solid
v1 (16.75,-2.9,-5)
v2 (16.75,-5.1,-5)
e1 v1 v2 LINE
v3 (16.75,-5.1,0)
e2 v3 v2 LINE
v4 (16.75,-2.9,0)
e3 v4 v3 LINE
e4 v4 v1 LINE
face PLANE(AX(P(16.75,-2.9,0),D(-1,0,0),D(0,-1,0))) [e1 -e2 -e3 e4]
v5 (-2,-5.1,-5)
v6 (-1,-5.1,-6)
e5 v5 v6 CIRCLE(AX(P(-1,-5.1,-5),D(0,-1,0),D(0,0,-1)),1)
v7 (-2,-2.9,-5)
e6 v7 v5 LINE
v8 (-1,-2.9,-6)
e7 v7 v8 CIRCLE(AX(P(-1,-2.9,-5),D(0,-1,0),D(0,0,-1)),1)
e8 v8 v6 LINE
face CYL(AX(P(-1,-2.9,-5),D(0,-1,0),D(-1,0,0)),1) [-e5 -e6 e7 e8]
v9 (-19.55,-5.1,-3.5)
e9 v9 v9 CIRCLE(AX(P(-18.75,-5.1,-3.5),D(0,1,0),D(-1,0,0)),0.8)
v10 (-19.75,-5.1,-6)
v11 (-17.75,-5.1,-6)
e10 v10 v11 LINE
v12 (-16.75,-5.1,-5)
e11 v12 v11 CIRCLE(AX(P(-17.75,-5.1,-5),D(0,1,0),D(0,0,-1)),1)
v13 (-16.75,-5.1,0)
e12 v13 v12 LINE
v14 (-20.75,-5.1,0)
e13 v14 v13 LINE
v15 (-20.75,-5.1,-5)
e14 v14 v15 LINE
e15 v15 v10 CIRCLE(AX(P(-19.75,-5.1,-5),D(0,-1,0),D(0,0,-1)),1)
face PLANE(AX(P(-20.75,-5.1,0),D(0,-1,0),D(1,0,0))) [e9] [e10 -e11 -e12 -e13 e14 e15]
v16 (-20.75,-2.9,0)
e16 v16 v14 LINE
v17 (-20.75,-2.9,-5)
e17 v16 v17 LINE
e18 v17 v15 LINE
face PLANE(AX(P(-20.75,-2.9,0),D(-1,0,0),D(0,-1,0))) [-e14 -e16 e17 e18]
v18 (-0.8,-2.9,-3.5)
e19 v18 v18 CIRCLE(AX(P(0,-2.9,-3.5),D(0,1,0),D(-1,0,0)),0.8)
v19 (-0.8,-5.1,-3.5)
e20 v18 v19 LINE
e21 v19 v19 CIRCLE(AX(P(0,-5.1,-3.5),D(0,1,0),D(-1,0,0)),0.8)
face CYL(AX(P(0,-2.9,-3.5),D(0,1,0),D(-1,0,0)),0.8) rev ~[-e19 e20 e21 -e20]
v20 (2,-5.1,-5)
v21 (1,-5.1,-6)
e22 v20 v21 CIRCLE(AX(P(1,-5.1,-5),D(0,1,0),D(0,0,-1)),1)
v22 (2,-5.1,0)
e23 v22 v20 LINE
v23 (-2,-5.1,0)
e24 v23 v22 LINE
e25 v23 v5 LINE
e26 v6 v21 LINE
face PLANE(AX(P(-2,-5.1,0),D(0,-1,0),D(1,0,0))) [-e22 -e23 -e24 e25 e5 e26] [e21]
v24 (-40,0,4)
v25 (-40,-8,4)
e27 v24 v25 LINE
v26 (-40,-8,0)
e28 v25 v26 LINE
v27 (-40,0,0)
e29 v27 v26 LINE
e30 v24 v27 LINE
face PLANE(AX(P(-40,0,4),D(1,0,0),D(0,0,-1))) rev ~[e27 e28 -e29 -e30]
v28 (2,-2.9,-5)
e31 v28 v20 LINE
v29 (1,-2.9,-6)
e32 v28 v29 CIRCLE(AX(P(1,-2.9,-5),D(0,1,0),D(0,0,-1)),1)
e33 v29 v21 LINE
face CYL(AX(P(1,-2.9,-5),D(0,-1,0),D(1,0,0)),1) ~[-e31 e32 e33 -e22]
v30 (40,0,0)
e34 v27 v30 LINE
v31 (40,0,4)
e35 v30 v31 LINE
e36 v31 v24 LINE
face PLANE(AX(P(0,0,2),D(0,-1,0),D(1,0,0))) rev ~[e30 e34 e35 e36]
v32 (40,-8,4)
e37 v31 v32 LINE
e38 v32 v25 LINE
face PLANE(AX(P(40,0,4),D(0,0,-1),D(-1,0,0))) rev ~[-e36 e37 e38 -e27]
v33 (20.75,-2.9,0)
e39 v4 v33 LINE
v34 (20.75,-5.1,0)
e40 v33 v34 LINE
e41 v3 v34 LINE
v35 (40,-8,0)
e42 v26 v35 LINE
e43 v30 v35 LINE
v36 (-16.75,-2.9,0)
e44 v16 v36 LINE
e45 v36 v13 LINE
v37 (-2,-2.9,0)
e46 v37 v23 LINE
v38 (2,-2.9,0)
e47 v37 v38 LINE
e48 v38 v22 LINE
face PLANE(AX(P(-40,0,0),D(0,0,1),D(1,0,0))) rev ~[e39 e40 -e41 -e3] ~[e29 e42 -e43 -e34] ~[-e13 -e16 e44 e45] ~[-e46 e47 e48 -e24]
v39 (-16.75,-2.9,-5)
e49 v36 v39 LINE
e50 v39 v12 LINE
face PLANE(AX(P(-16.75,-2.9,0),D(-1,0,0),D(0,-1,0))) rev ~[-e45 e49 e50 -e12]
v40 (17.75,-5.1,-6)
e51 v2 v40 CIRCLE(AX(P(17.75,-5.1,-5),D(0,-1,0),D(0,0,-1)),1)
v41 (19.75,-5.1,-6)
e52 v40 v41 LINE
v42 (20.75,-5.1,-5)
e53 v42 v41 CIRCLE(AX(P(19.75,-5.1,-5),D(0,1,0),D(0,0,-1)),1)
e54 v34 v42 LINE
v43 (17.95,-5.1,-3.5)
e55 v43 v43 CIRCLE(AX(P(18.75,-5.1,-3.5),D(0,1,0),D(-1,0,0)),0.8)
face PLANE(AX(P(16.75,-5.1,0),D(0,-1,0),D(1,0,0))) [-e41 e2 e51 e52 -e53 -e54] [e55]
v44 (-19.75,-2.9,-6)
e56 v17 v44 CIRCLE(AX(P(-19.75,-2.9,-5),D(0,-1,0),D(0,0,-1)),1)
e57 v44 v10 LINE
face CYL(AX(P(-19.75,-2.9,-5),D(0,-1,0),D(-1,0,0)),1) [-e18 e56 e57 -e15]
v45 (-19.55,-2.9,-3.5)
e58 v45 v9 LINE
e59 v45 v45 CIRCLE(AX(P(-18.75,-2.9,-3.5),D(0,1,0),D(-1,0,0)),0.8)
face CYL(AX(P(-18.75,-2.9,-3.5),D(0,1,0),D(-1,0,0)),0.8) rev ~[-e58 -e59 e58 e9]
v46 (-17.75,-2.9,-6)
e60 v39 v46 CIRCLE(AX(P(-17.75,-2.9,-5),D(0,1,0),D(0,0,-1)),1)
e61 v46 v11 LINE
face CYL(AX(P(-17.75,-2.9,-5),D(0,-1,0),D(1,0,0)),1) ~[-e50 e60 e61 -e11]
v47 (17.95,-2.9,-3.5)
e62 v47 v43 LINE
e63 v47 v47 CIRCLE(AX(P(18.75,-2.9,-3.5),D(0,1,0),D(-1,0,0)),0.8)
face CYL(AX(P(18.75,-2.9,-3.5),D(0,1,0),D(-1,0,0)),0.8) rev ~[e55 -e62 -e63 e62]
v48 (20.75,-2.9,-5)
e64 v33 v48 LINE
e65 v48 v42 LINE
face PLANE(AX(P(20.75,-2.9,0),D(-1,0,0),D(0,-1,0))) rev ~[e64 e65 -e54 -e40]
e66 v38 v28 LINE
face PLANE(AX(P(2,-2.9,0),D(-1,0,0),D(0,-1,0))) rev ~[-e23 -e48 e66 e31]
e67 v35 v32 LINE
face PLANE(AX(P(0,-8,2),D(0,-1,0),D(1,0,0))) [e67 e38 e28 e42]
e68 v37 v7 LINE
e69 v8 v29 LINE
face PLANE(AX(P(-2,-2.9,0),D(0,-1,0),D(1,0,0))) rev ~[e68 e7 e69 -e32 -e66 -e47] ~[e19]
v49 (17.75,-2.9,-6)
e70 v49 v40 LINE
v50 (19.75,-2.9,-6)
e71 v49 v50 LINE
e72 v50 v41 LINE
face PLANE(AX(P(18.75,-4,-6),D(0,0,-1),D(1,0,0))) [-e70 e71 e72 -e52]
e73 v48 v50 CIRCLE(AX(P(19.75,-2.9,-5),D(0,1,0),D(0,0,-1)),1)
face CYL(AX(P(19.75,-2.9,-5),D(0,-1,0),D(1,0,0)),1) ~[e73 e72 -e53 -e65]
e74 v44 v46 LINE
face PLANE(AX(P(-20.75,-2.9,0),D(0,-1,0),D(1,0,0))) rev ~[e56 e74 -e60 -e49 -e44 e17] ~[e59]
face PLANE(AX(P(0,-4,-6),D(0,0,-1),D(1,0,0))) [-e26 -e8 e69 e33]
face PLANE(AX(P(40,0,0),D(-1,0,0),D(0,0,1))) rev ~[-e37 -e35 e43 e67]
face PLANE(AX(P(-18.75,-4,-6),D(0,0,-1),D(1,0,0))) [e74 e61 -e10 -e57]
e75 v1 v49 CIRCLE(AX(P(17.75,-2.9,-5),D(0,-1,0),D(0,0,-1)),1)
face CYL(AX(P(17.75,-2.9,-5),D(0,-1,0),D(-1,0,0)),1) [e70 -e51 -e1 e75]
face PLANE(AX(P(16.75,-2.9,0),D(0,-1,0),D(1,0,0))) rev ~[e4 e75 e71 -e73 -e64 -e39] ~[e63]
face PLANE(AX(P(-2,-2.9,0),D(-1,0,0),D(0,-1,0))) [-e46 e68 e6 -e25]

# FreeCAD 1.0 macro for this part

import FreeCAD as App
import Part
import Sketcher
from FreeCAD import Vector


def edges_at(feature, points):
    """Names of the edges that pass closest to the given points."""
    edges = feature.Shape.Edges
    near = lambda p: min(range(len(edges)), key=lambda i: edges[i].distToShape(Part.Vertex(*p))[0])
    return sorted({f"Edge{near(p) + 1}" for p in points})

doc = App.newDocument("Part")
params = doc.addObject("Spreadsheet::Sheet", "Params")
for row, (alias, value) in enumerate([
    ("sketch1_width", "80 mm"),
    ("sketch1_height", "4 mm"),
    ("pad1_length", "8 mm"),
    ("sketch2_width", "4 mm"),
    ("sketch2_height", "2.2 mm"),
    ("pad2_length", "6 mm"),
    ("sketch3_diameter", "1.6 mm"),
    ("fillet_radius", "1 mm"),
], start=1):
    params.set(f"A{row}", alias)
    params.set(f"B{row}", "=" + value)
    params.setAlias(f"B{row}", alias)

body = doc.addObject("PartDesign::Body", "Body")

# Sketch on XZ plane
sketch1 = body.newObject("Sketcher::SketchObject", "Sketch")
sketch1.AttachmentSupport = (doc.getObject("XZ_Plane"), [""])
sketch1.MapMode = "FlatFace"
sketch1.addGeometry([
    Part.LineSegment(Vector(-40, 4, 0), Vector(-40, 0, 0)),
    Part.LineSegment(Vector(-40, 0, 0), Vector(40, 0, 0)),
    Part.LineSegment(Vector(40, 0, 0), Vector(40, 4, 0)),
    Part.LineSegment(Vector(40, 4, 0), Vector(-40, 4, 0)),
], False)
sketch1.addConstraint([
    Sketcher.Constraint("Coincident", 0, 2, 1, 1),
    Sketcher.Constraint("Coincident", 1, 2, 2, 1),
    Sketcher.Constraint("Coincident", 2, 2, 3, 1),
    Sketcher.Constraint("Coincident", 3, 2, 0, 1),
    Sketcher.Constraint("Vertical", 0),
    Sketcher.Constraint("Horizontal", 1),
    Sketcher.Constraint("Vertical", 2),
    Sketcher.Constraint("Horizontal", 3),
    Sketcher.Constraint("Symmetric", 0, 2, 1, 2, -1, 1),
    Sketcher.Constraint("DistanceX", 1, 1, 1, 2, 80.0),
    Sketcher.Constraint("DistanceY", 0, 2, 0, 1, 4.0),
])
sketch1.setExpression("Constraints[9]", "Params.sketch1_width")
sketch1.setExpression("Constraints[10]", "Params.sketch1_height")
pad1 = body.newObject("PartDesign::Pad", "Pad")
pad1.Profile = sketch1
pad1.setExpression("Length", "Params.pad1_length")

# Sketch on XY plane
sketch2 = body.newObject("Sketcher::SketchObject", "Sketch001")
sketch2.AttachmentSupport = (doc.getObject("XY_Plane"), [""])
sketch2.MapMode = "FlatFace"
sketch2.addGeometry([
    Part.LineSegment(Vector(-20.8, -5.1, 0), Vector(-20.8, -2.9, 0)),  # 0
    Part.LineSegment(Vector(-20.8, -2.9, 0), Vector(-16.8, -2.9, 0)),  # 1
    Part.LineSegment(Vector(-16.8, -2.9, 0), Vector(-16.8, -5.1, 0)),  # 2
    Part.LineSegment(Vector(-16.8, -5.1, 0), Vector(-20.8, -5.1, 0)),  # 3
    Part.LineSegment(Vector(16.8, -5.1, 0), Vector(16.8, -2.9, 0)),  # 4
    Part.LineSegment(Vector(16.8, -2.9, 0), Vector(20.8, -2.9, 0)),  # 5
    Part.LineSegment(Vector(20.8, -2.9, 0), Vector(20.8, -5.1, 0)),  # 6
    Part.LineSegment(Vector(20.8, -5.1, 0), Vector(16.8, -5.1, 0)),  # 7
    Part.LineSegment(Vector(-2, -5.1, 0), Vector(-2, -2.9, 0)),  # 8
    Part.LineSegment(Vector(-2, -2.9, 0), Vector(2, -2.9, 0)),  # 9
    Part.LineSegment(Vector(2, -2.9, 0), Vector(2, -5.1, 0)),  # 10
    Part.LineSegment(Vector(2, -5.1, 0), Vector(-2, -5.1, 0)),  # 11
], False)
sketch2.addConstraint([
    Sketcher.Constraint("Coincident", 0, 2, 1, 1),
    Sketcher.Constraint("Coincident", 1, 2, 2, 1),
    Sketcher.Constraint("Coincident", 2, 2, 3, 1),
    Sketcher.Constraint("Coincident", 3, 2, 0, 1),
    Sketcher.Constraint("Coincident", 4, 2, 5, 1),
    Sketcher.Constraint("Coincident", 5, 2, 6, 1),
    Sketcher.Constraint("Coincident", 6, 2, 7, 1),
    Sketcher.Constraint("Coincident", 7, 2, 4, 1),
    Sketcher.Constraint("Coincident", 8, 2, 9, 1),
    Sketcher.Constraint("Coincident", 9, 2, 10, 1),
    Sketcher.Constraint("Coincident", 10, 2, 11, 1),
    Sketcher.Constraint("Coincident", 11, 2, 8, 1),
    Sketcher.Constraint("Vertical", 0),
    Sketcher.Constraint("Horizontal", 1),
    Sketcher.Constraint("Vertical", 2),
    Sketcher.Constraint("Horizontal", 3),
    Sketcher.Constraint("Vertical", 4),
    Sketcher.Constraint("Horizontal", 5),
    Sketcher.Constraint("Vertical", 6),
    Sketcher.Constraint("Horizontal", 7),
    Sketcher.Constraint("Vertical", 8),
    Sketcher.Constraint("Horizontal", 9),
    Sketcher.Constraint("Vertical", 10),
    Sketcher.Constraint("Horizontal", 11),
    Sketcher.Constraint("Symmetric", 1, 2, 4, 2, -2),
    Sketcher.Constraint("Symmetric", 3, 2, 6, 2, -2),
    Sketcher.Constraint("Horizontal", 5, 2, 8, 2),
    Sketcher.Constraint("Horizontal", 7, 2, 10, 2),
    Sketcher.Constraint("Equal", 7, 9),
    Sketcher.Constraint("DistanceX", 1, 1, 1, 2, 4.0),
    Sketcher.Constraint("DistanceY", 0, 1, 0, 2, 2.2),
    Sketcher.Constraint("DistanceX", 8, 2, -1, 1, 2.0),
    Sketcher.Constraint("DistanceY", 0, 2, -1, 1, 2.9),
    Sketcher.Constraint("DistanceX", 1, 2, 4, 2, 33.5),
])
sketch2.setExpression("Constraints[29]", "Params.sketch2_width")
sketch2.setExpression("Constraints[30]", "Params.sketch2_height")
pad2 = body.newObject("PartDesign::Pad", "Pad001")
pad2.Profile = sketch2
pad2.setExpression("Length", "Params.pad2_length")
pad2.Reversed = True

# Sketch on XZ plane
sketch3 = body.newObject("Sketcher::SketchObject", "Sketch002")
sketch3.AttachmentSupport = (doc.getObject("XZ_Plane"), [""])
sketch3.MapMode = "FlatFace"
sketch3.AttachmentOffset = App.Placement(Vector(0, 0, 2.9), App.Rotation())
sketch3.addGeometry([
    Part.Circle(Vector(18.8, -3.5, 0), Vector(0, 0, 1), 0.8),
    Part.Circle(Vector(-18.8, -3.5, 0), Vector(0, 0, 1), 0.8),
    Part.Circle(Vector(0, -3.5, 0), Vector(0, 0, 1), 0.8),
], False)
sketch3.addConstraint([
    Sketcher.Constraint("Equal", 0, 1),
    Sketcher.Constraint("Equal", 1, 2),
    Sketcher.Constraint("Symmetric", 0, 3, 1, 3, -2),
    Sketcher.Constraint("PointOnObject", 2, 3, -2),
    Sketcher.Constraint("Horizontal", 1, 3, 2, 3),
    Sketcher.Constraint("Diameter", 0, 1.6),
    Sketcher.Constraint("DistanceY", 0, 3, -1, 1, 3.5),
    Sketcher.Constraint("DistanceX", 1, 3, 0, 3, 37.5),
])
sketch3.setExpression("Constraints[5]", "Params.sketch3_diameter")
pocket1 = body.newObject("PartDesign::Pocket", "Pocket")
pocket1.Profile = sketch3
pocket1.Type = "ThroughAll"
pocket1.Reversed = True
doc.recompute()

fillet = body.newObject("PartDesign::Fillet", "Fillet")
fillet.Base = (pocket1, edges_at(pocket1, [
    (20.75, -4, -6),
    (16.75, -4, -6),
    (-16.75, -4, -6),
    (-20.75, -4, -6),
    (-2, -4, -6),
    (2, -4, -6),
]))
fillet.setExpression("Radius", "Params.fillet_radius")

doc.recompute()
